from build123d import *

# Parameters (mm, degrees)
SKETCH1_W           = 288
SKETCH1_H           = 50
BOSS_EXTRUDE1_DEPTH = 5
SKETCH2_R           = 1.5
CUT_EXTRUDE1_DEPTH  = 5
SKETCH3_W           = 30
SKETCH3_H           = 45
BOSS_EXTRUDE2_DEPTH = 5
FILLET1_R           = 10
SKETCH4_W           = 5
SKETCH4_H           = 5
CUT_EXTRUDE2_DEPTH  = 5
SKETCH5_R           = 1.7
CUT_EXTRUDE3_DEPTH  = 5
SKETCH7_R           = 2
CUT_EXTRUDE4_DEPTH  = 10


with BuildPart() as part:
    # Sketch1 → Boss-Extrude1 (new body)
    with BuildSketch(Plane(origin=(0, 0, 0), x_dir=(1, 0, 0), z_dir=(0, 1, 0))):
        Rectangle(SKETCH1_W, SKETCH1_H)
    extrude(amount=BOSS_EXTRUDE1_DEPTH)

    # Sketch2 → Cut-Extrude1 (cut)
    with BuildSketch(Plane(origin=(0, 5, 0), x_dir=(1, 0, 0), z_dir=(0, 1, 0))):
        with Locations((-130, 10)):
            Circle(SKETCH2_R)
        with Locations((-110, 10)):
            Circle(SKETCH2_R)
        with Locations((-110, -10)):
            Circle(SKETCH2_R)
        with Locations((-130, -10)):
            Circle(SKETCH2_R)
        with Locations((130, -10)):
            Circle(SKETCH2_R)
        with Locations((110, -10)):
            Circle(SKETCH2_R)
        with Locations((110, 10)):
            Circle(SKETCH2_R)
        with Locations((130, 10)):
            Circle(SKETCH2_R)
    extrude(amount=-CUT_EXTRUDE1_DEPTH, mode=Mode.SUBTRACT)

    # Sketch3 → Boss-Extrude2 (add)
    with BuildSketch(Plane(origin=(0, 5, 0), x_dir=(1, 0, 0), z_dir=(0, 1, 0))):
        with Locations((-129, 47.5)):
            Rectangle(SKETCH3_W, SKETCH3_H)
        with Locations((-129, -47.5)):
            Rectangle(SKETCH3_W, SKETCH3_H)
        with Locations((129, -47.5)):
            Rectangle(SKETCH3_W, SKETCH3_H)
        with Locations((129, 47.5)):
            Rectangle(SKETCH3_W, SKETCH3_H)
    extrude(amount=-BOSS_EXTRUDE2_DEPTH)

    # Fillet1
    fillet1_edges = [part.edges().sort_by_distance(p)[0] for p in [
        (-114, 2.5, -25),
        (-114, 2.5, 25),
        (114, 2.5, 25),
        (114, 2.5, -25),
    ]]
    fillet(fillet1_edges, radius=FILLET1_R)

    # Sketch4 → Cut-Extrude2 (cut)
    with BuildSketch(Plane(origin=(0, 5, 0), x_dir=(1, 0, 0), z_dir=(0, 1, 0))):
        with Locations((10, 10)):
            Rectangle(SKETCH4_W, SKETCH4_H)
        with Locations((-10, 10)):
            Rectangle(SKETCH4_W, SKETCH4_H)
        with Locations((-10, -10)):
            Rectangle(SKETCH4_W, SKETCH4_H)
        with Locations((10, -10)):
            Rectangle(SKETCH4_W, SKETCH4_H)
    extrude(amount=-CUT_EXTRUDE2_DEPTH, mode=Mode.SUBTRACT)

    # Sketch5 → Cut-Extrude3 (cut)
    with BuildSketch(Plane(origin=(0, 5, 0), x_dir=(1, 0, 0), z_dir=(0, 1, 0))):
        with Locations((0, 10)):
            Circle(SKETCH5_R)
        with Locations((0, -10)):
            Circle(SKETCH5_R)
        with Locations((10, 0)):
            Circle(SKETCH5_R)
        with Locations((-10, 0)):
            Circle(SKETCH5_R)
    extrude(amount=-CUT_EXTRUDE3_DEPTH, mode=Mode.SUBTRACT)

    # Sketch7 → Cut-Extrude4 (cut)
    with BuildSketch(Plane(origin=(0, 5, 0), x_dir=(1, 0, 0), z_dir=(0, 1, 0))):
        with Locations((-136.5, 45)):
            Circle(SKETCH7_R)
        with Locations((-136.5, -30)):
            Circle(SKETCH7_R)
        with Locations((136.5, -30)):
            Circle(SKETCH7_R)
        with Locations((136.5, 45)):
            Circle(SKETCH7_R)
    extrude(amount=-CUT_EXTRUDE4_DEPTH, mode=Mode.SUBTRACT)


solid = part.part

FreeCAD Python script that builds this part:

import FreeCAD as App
import Part
import Sketcher


def edges_at(feature, points):
    """Names of the edges that pass closest to the given points."""
    edges = feature.Shape.Edges
    near = lambda p: min(range(len(edges)), key=lambda i: edges[i].distToShape(Part.Vertex(*p))[0])
    return sorted({f"Edge{near(p) + 1}" for p in points})

doc = App.newDocument("Part")
body = doc.addObject("PartDesign::Body", "Body")

# Sketch on XZ plane
sketch1 = doc.addObject("Sketcher::SketchObject", "Sketch")
body.addObject(sketch1)
sketch1.AttachmentSupport = (doc.XZ_Plane, [""])
sketch1.MapMode = "FlatFace"
sketch1.addGeometry(Part.LineSegment(App.Vector(-144, -25, 0), App.Vector(-144, 25, 0)), False)
sketch1.addGeometry(Part.LineSegment(App.Vector(-144, 25, 0), App.Vector(144, 25, 0)), False)
sketch1.addGeometry(Part.LineSegment(App.Vector(144, 25, 0), App.Vector(144, -25, 0)), False)
sketch1.addGeometry(Part.LineSegment(App.Vector(144, -25, 0), App.Vector(-144, -25, 0)), False)
sketch1.addConstraint(Sketcher.Constraint("Coincident", 0, 2, 1, 1))
sketch1.addConstraint(Sketcher.Constraint("Coincident", 1, 2, 2, 1))
sketch1.addConstraint(Sketcher.Constraint("Coincident", 2, 2, 3, 1))
sketch1.addConstraint(Sketcher.Constraint("Coincident", 3, 2, 0, 1))
sketch1.addConstraint(Sketcher.Constraint("Vertical", 0))
sketch1.addConstraint(Sketcher.Constraint("Horizontal", 1))
sketch1.addConstraint(Sketcher.Constraint("Vertical", 2))
sketch1.addConstraint(Sketcher.Constraint("Horizontal", 3))
sketch1.addConstraint(Sketcher.Constraint("Symmetric", 0, 2, 2, 2, -1, 1))
sketch1.addConstraint(Sketcher.Constraint("DistanceX", 1, 1, 1, 2, 288.0))
sketch1.addConstraint(Sketcher.Constraint("DistanceY", 0, 1, 0, 2, 50.0))
pad1 = doc.addObject("PartDesign::Pad", "Pad")
body.addObject(pad1)
pad1.Profile = sketch1
pad1.Length = 5
pad1.Reversed = True

# Sketch on XZ plane
sketch2 = doc.addObject("Sketcher::SketchObject", "Sketch001")
body.addObject(sketch2)
sketch2.AttachmentSupport = (doc.XZ_Plane, [""])
sketch2.MapMode = "FlatFace"
sketch2.AttachmentOffset = App.Placement(App.Vector(0, 0, -5), App.Rotation())
sketch2.addGeometry(Part.Circle(App.Vector(-130, -10, 0), App.Vector(0, 0, 1), 1.5), False)
sketch2.addGeometry(Part.Circle(App.Vector(-110, -10, 0), App.Vector(0, 0, 1), 1.5), False)
sketch2.addGeometry(Part.Circle(App.Vector(-110, 10, 0), App.Vector(0, 0, 1), 1.5), False)
sketch2.addGeometry(Part.Circle(App.Vector(-130, 10, 0), App.Vector(0, 0, 1), 1.5), False)
sketch2.addGeometry(Part.Circle(App.Vector(130, 10, 0), App.Vector(0, 0, 1), 1.5), False)
sketch2.addGeometry(Part.Circle(App.Vector(110, 10, 0), App.Vector(0, 0, 1), 1.5), False)
sketch2.addGeometry(Part.Circle(App.Vector(110, -10, 0), App.Vector(0, 0, 1), 1.5), False)
sketch2.addGeometry(Part.Circle(App.Vector(130, -10, 0), App.Vector(0, 0, 1), 1.5), False)
sketch2.addConstraint(Sketcher.Constraint("Equal", 0, 1))
sketch2.addConstraint(Sketcher.Constraint("Equal", 1, 2))
sketch2.addConstraint(Sketcher.Constraint("Equal", 2, 3))
sketch2.addConstraint(Sketcher.Constraint("Equal", 3, 4))
sketch2.addConstraint(Sketcher.Constraint("Equal", 4, 5))
sketch2.addConstraint(Sketcher.Constraint("Equal", 5, 6))
sketch2.addConstraint(Sketcher.Constraint("Equal", 6, 7))
sketch2.addConstraint(Sketcher.Constraint("Symmetric", 0, 3, 4, 3, -1, 1))
sketch2.addConstraint(Sketcher.Constraint("Symmetric", 1, 3, 5, 3, -1, 1))
sketch2.addConstraint(Sketcher.Constraint("Symmetric", 2, 3, 6, 3, -1, 1))
sketch2.addConstraint(Sketcher.Constraint("Symmetric", 3, 3, 7, 3, -1, 1))
sketch2.addConstraint(Sketcher.Constraint("Symmetric", 3, 3, 4, 3, -2))
sketch2.addConstraint(Sketcher.Constraint("Symmetric", 2, 3, 5, 3, -2))
sketch2.addConstraint(Sketcher.Constraint("Horizontal", 0, 3, 1, 3))
sketch2.addConstraint(Sketcher.Constraint("Diameter", 0, 3.0))
sketch2.addConstraint(Sketcher.Constraint("DistanceX", 0, 3, -1, 1, 130.0))
sketch2.addConstraint(Sketcher.Constraint("DistanceY", 0, 3, -1, 1, 10.0))
sketch2.addConstraint(Sketcher.Constraint("DistanceX", 1, 3, -1, 1, 110.0))
pocket1 = doc.addObject("PartDesign::Pocket", "Pocket")
body.addObject(pocket1)
pocket1.Profile = sketch2
pocket1.Length = 5
pocket1.Reversed = True

# Sketch on XZ plane
sketch3 = doc.addObject("Sketcher::SketchObject", "Sketch002")
body.addObject(sketch3)
sketch3.AttachmentSupport = (doc.XZ_Plane, [""])
sketch3.MapMode = "FlatFace"
sketch3.AttachmentOffset = App.Placement(App.Vector(0, 0, -5), App.Rotation())
sketch3.addGeometry(Part.LineSegment(App.Vector(-144, -70, 0), App.Vector(-144, -25, 0)), False)
sketch3.addGeometry(Part.LineSegment(App.Vector(-144, -25, 0), App.Vector(-114, -25, 0)), False)
sketch3.addGeometry(Part.LineSegment(App.Vector(-114, -25, 0), App.Vector(-114, -70, 0)), False)
sketch3.addGeometry(Part.LineSegment(App.Vector(-114, -70, 0), App.Vector(-144, -70, 0)), False)
sketch3.addGeometry(Part.LineSegment(App.Vector(-144, 25, 0), App.Vector(-144, 70, 0)), False)
sketch3.addGeometry(Part.LineSegment(App.Vector(-144, 70, 0), App.Vector(-114, 70, 0)), False)
sketch3.addGeometry(Part.LineSegment(App.Vector(-114, 70, 0), App.Vector(-114, 25, 0)), False)
sketch3.addGeometry(Part.LineSegment(App.Vector(-114, 25, 0), App.Vector(-144, 25, 0)), False)
sketch3.addGeometry(Part.LineSegment(App.Vector(114, 25, 0), App.Vector(114, 70, 0)), False)
sketch3.addGeometry(Part.LineSegment(App.Vector(114, 70, 0), App.Vector(144, 70, 0)), False)
sketch3.addGeometry(Part.LineSegment(App.Vector(144, 70, 0), App.Vector(144, 25, 0)), False)
sketch3.addGeometry(Part.LineSegment(App.Vector(144, 25, 0), App.Vector(114, 25, 0)), False)
sketch3.addGeometry(Part.LineSegment(App.Vector(114, -70, 0), App.Vector(114, -25, 0)), False)
sketch3.addGeometry(Part.LineSegment(App.Vector(114, -25, 0), App.Vector(144, -25, 0)), False)
sketch3.addGeometry(Part.LineSegment(App.Vector(144, -25, 0), App.Vector(144, -70, 0)), False)
sketch3.addGeometry(Part.LineSegment(App.Vector(144, -70, 0), App.Vector(114, -70, 0)), False)
sketch3.addConstraint(Sketcher.Constraint("Coincident", 0, 2, 1, 1))
sketch3.addConstraint(Sketcher.Constraint("Coincident", 1, 2, 2, 1))
sketch3.addConstraint(Sketcher.Constraint("Coincident", 2, 2, 3, 1))
sketch3.addConstraint(Sketcher.Constraint("Coincident", 3, 2, 0, 1))
sketch3.addConstraint(Sketcher.Constraint("Coincident", 4, 2, 5, 1))
sketch3.addConstraint(Sketcher.Constraint("Coincident", 5, 2, 6, 1))
sketch3.addConstraint(Sketcher.Constraint("Coincident", 6, 2, 7, 1))
sketch3.addConstraint(Sketcher.Constraint("Coincident", 7, 2, 4, 1))
sketch3.addConstraint(Sketcher.Constraint("Coincident", 8, 2, 9, 1))
sketch3.addConstraint(Sketcher.Constraint("Coincident", 9, 2, 10, 1))
sketch3.addConstraint(Sketcher.Constraint("Coincident", 10, 2, 11, 1))
sketch3.addConstraint(Sketcher.Constraint("Coincident", 11, 2, 8, 1))
sketch3.addConstraint(Sketcher.Constraint("Coincident", 12, 2, 13, 1))
sketch3.addConstraint(Sketcher.Constraint("Coincident", 13, 2, 14, 1))
sketch3.addConstraint(Sketcher.Constraint("Coincident", 14, 2, 15, 1))
sketch3.addConstraint(Sketcher.Constraint("Coincident", 15, 2, 12, 1))
sketch3.addConstraint(Sketcher.Constraint("Vertical", 0))
sketch3.addConstraint(Sketcher.Constraint("Horizontal", 1))
sketch3.addConstraint(Sketcher.Constraint("Vertical", 2))
sketch3.addConstraint(Sketcher.Constraint("Horizontal", 3))
sketch3.addConstraint(Sketcher.Constraint("Vertical", 4))
sketch3.addConstraint(Sketcher.Constraint("Horizontal", 5))
sketch3.addConstraint(Sketcher.Constraint("Vertical", 6))
sketch3.addConstraint(Sketcher.Constraint("Horizontal", 7))
sketch3.addConstraint(Sketcher.Constraint("Vertical", 8))
sketch3.addConstraint(Sketcher.Constraint("Horizontal", 9))
sketch3.addConstraint(Sketcher.Constraint("Vertical", 10))
sketch3.addConstraint(Sketcher.Constraint("Horizontal", 11))
sketch3.addConstraint(Sketcher.Constraint("Vertical", 12))
sketch3.addConstraint(Sketcher.Constraint("Horizontal", 13))
sketch3.addConstraint(Sketcher.Constraint("Vertical", 14))
sketch3.addConstraint(Sketcher.Constraint("Horizontal", 15))
sketch3.addConstraint(Sketcher.Constraint("Symmetric", 2, 2, 8, 2, -1, 1))
sketch3.addConstraint(Sketcher.Constraint("Symmetric", 0, 2, 10, 2, -1, 1))
sketch3.addConstraint(Sketcher.Constraint("Symmetric", 6, 2, 12, 2, -1, 1))
sketch3.addConstraint(Sketcher.Constraint("Symmetric", 4, 2, 14, 2, -1, 1))
sketch3.addConstraint(Sketcher.Constraint("Symmetric", 5, 2, 8, 2, -2))
sketch3.addConstraint(Sketcher.Constraint("Symmetric", 7, 2, 10, 2, -2))
sketch3.addConstraint(Sketcher.Constraint("DistanceX", 1, 1, 1, 2, 30.0))
sketch3.addConstraint(Sketcher.Constraint("DistanceY", 0, 1, 0, 2, 45.0))
sketch3.addConstraint(Sketcher.Constraint("DistanceX", 0, 2, -1, 1, 144.0))
sketch3.addConstraint(Sketcher.Constraint("DistanceY", 0, 2, -1, 1, 25.0))
pad2 = doc.addObject("PartDesign::Pad", "Pad001")
body.addObject(pad2)
pad2.Profile = sketch3
pad2.Length = 5
doc.recompute()

fillet = doc.addObject("PartDesign::Fillet", "Fillet")
body.addObject(fillet)
fillet.Base = (pad2, edges_at(pad2, [
    (-114, 2.5, -25),
    (-114, 2.5, 25),
    (114, 2.5, 25),
    (114, 2.5, -25),
]))
fillet.Radius = 10

# Sketch on XZ plane
sketch4 = doc.addObject("Sketcher::SketchObject", "Sketch003")
body.addObject(sketch4)
sketch4.AttachmentSupport = (doc.XZ_Plane, [""])
sketch4.MapMode = "FlatFace"
sketch4.AttachmentOffset = App.Placement(App.Vector(0, 0, -5), App.Rotation())
sketch4.addGeometry(Part.LineSegment(App.Vector(8, -12, 0), App.Vector(8, -8, 0)), False)
sketch4.addGeometry(Part.LineSegment(App.Vector(8, -8, 0), App.Vector(12, -8, 0)), False)
sketch4.addGeometry(Part.LineSegment(App.Vector(12, -8, 0), App.Vector(12, -12, 0)), False)
sketch4.addGeometry(Part.LineSegment(App.Vector(12, -12, 0), App.Vector(8, -12, 0)), False)
sketch4.addGeometry(Part.LineSegment(App.Vector(-12, -12, 0), App.Vector(-12, -8, 0)), False)
sketch4.addGeometry(Part.LineSegment(App.Vector(-12, -8, 0), App.Vector(-8, -8, 0)), False)
sketch4.addGeometry(Part.LineSegment(App.Vector(-8, -8, 0), App.Vector(-8, -12, 0)), False)
sketch4.addGeometry(Part.LineSegment(App.Vector(-8, -12, 0), App.Vector(-12, -12, 0)), False)
sketch4.addGeometry(Part.LineSegment(App.Vector(-12, 8, 0), App.Vector(-12, 12, 0)), False)
sketch4.addGeometry(Part.LineSegment(App.Vector(-12, 12, 0), App.Vector(-8, 12, 0)), False)
sketch4.addGeometry(Part.LineSegment(App.Vector(-8, 12, 0), App.Vector(-8, 8, 0)), False)
sketch4.addGeometry(Part.LineSegment(App.Vector(-8, 8, 0), App.Vector(-12, 8, 0)), False)
sketch4.addGeometry(Part.LineSegment(App.Vector(8, 8, 0), App.Vector(8, 12, 0)), False)
sketch4.addGeometry(Part.LineSegment(App.Vector(8, 12, 0), App.Vector(12, 12, 0)), False)
sketch4.addGeometry(Part.LineSegment(App.Vector(12, 12, 0), App.Vector(12, 8, 0)), False)
sketch4.addGeometry(Part.LineSegment(App.Vector(12, 8, 0), App.Vector(8, 8, 0)), False)
sketch4.addConstraint(Sketcher.Constraint("Coincident", 0, 2, 1, 1))
sketch4.addConstraint(Sketcher.Constraint("Coincident", 1, 2, 2, 1))
sketch4.addConstraint(Sketcher.Constraint("Coincident", 2, 2, 3, 1))
sketch4.addConstraint(Sketcher.Constraint("Coincident", 3, 2, 0, 1))
sketch4.addConstraint(Sketcher.Constraint("Coincident", 4, 2, 5, 1))
sketch4.addConstraint(Sketcher.Constraint("Coincident", 5, 2, 6, 1))
sketch4.addConstraint(Sketcher.Constraint("Coincident", 6, 2, 7, 1))
sketch4.addConstraint(Sketcher.Constraint("Coincident", 7, 2, 4, 1))
sketch4.addConstraint(Sketcher.Constraint("Coincident", 8, 2, 9, 1))
sketch4.addConstraint(Sketcher.Constraint("Coincident", 9, 2, 10, 1))
sketch4.addConstraint(Sketcher.Constraint("Coincident", 10, 2, 11, 1))
sketch4.addConstraint(Sketcher.Constraint("Coincident", 11, 2, 8, 1))
sketch4.addConstraint(Sketcher.Constraint("Coincident", 12, 2, 13, 1))
sketch4.addConstraint(Sketcher.Constraint("Coincident", 13, 2, 14, 1))
sketch4.addConstraint(Sketcher.Constraint("Coincident", 14, 2, 15, 1))
sketch4.addConstraint(Sketcher.Constraint("Coincident", 15, 2, 12, 1))
sketch4.addConstraint(Sketcher.Constraint("Vertical", 0))
sketch4.addConstraint(Sketcher.Constraint("Horizontal", 1))
sketch4.addConstraint(Sketcher.Constraint("Vertical", 2))
sketch4.addConstraint(Sketcher.Constraint("Horizontal", 3))
sketch4.addConstraint(Sketcher.Constraint("Vertical", 4))
sketch4.addConstraint(Sketcher.Constraint("Horizontal", 5))
sketch4.addConstraint(Sketcher.Constraint("Vertical", 6))
sketch4.addConstraint(Sketcher.Constraint("Horizontal", 7))
sketch4.addConstraint(Sketcher.Constraint("Vertical", 8))
sketch4.addConstraint(Sketcher.Constraint("Horizontal", 9))
sketch4.addConstraint(Sketcher.Constraint("Vertical", 10))
sketch4.addConstraint(Sketcher.Constraint("Horizontal", 11))
sketch4.addConstraint(Sketcher.Constraint("Vertical", 12))
sketch4.addConstraint(Sketcher.Constraint("Horizontal", 13))
sketch4.addConstraint(Sketcher.Constraint("Vertical", 14))
sketch4.addConstraint(Sketcher.Constraint("Horizontal", 15))
sketch4.addConstraint(Sketcher.Constraint("Symmetric", 2, 2, 8, 2, -1, 1))
sketch4.addConstraint(Sketcher.Constraint("Symmetric", 0, 2, 10, 2, -1, 1))
sketch4.addConstraint(Sketcher.Constraint("Symmetric", 6, 2, 12, 2, -1, 1))
sketch4.addConstraint(Sketcher.Constraint("Symmetric", 4, 2, 14, 2, -1, 1))
sketch4.addConstraint(Sketcher.Constraint("Symmetric", 1, 2, 4, 2, -2))
sketch4.addConstraint(Sketcher.Constraint("Symmetric", 3, 2, 6, 2, -2))
sketch4.addConstraint(Sketcher.Constraint("Equal", 15, 0))
sketch4.addConstraint(Sketcher.Constraint("DistanceX", 1, 1, 1, 2, 5.0))
sketch4.addConstraint(Sketcher.Constraint("DistanceX", 4, 2, 0, 2, 20.0))
sketch4.addConstraint(Sketcher.Constraint("DistanceY", 4, 2, 8, 2, 20.0))
pocket2 = doc.addObject("PartDesign::Pocket", "Pocket001")
body.addObject(pocket2)
pocket2.Profile = sketch4
pocket2.Length = 5
pocket2.Reversed = True

# Sketch on XZ plane
sketch5 = doc.addObject("Sketcher::SketchObject", "Sketch004")
body.addObject(sketch5)
sketch5.AttachmentSupport = (doc.XZ_Plane, [""])
sketch5.MapMode = "FlatFace"
sketch5.AttachmentOffset = App.Placement(App.Vector(0, 0, -5), App.Rotation())
sketch5.addGeometry(Part.Circle(App.Vector(0, -10, 0), App.Vector(0, 0, 1), 1.7), False)
sketch5.addGeometry(Part.Circle(App.Vector(0, 10, 0), App.Vector(0, 0, 1), 1.7), False)
sketch5.addGeometry(Part.Circle(App.Vector(10, 0, 0), App.Vector(0, 0, 1), 1.7), False)
sketch5.addGeometry(Part.Circle(App.Vector(-10, 0, 0), App.Vector(0, 0, 1), 1.7), False)
sketch5.addConstraint(Sketcher.Constraint("Equal", 0, 1))
sketch5.addConstraint(Sketcher.Constraint("Equal", 1, 2))
sketch5.addConstraint(Sketcher.Constraint("Equal", 2, 3))
sketch5.addConstraint(Sketcher.Constraint("Symmetric", 0, 3, 1, 3, -1, 1))
sketch5.addConstraint(Sketcher.Constraint("Symmetric", 2, 3, 3, 3, -1, 1))
sketch5.addConstraint(Sketcher.Constraint("PointOnObject", 0, 3, -2))
sketch5.addConstraint(Sketcher.Constraint("PointOnObject", 2, 3, -1))
sketch5.addConstraint(Sketcher.Constraint("Diameter", 0, 3.4))
sketch5.addConstraint(Sketcher.Constraint("DistanceY", 0, 3, -1, 1, 10.0))
sketch5.addConstraint(Sketcher.Constraint("DistanceX", -1, 1, 2, 3, 10.0))
pocket3 = doc.addObject("PartDesign::Pocket", "Pocket002")
body.addObject(pocket3)
pocket3.Profile = sketch5
pocket3.Length = 5
pocket3.Reversed = True

# Sketch on XZ plane
sketch6 = doc.addObject("Sketcher::SketchObject", "Sketch005")
body.addObject(sketch6)
sketch6.AttachmentSupport = (doc.XZ_Plane, [""])
sketch6.MapMode = "FlatFace"
sketch6.AttachmentOffset = App.Placement(App.Vector(0, 0, -5), App.Rotation())
sketch6.addGeometry(Part.Circle(App.Vector(-136.5, -45, 0), App.Vector(0, 0, 1), 2), False)
sketch6.addGeometry(Part.Circle(App.Vector(-136.5, 30, 0), App.Vector(0, 0, 1), 2), False)
sketch6.addGeometry(Part.Circle(App.Vector(136.5, 30, 0), App.Vector(0, 0, 1), 2), False)
sketch6.addGeometry(Part.Circle(App.Vector(136.5, -45, 0), App.Vector(0, 0, 1), 2), False)
sketch6.addConstraint(Sketcher.Constraint("Equal", 0, 1))
sketch6.addConstraint(Sketcher.Constraint("Equal", 1, 2))
sketch6.addConstraint(Sketcher.Constraint("Equal", 2, 3))
sketch6.addConstraint(Sketcher.Constraint("Symmetric", 1, 3, 2, 3, -2))
sketch6.addConstraint(Sketcher.Constraint("Symmetric", 0, 3, 3, 3, -2))
sketch6.addConstraint(Sketcher.Constraint("Vertical", 0, 3, 1, 3))
sketch6.addConstraint(Sketcher.Constraint("Diameter", 0, 4.0))
sketch6.addConstraint(Sketcher.Constraint("DistanceY", 0, 3, -1, 1, 45.0))
sketch6.addConstraint(Sketcher.Constraint("DistanceY", -1, 1, 1, 3, 30.0))
sketch6.addConstraint(Sketcher.Constraint("DistanceX", 1, 3, 2, 3, 273.0))
pocket4 = doc.addObject("PartDesign::Pocket", "Pocket003")
body.addObject(pocket4)
pocket4.Profile = sketch6
pocket4.Length = 10
pocket4.Reversed = True

doc.recompute()
